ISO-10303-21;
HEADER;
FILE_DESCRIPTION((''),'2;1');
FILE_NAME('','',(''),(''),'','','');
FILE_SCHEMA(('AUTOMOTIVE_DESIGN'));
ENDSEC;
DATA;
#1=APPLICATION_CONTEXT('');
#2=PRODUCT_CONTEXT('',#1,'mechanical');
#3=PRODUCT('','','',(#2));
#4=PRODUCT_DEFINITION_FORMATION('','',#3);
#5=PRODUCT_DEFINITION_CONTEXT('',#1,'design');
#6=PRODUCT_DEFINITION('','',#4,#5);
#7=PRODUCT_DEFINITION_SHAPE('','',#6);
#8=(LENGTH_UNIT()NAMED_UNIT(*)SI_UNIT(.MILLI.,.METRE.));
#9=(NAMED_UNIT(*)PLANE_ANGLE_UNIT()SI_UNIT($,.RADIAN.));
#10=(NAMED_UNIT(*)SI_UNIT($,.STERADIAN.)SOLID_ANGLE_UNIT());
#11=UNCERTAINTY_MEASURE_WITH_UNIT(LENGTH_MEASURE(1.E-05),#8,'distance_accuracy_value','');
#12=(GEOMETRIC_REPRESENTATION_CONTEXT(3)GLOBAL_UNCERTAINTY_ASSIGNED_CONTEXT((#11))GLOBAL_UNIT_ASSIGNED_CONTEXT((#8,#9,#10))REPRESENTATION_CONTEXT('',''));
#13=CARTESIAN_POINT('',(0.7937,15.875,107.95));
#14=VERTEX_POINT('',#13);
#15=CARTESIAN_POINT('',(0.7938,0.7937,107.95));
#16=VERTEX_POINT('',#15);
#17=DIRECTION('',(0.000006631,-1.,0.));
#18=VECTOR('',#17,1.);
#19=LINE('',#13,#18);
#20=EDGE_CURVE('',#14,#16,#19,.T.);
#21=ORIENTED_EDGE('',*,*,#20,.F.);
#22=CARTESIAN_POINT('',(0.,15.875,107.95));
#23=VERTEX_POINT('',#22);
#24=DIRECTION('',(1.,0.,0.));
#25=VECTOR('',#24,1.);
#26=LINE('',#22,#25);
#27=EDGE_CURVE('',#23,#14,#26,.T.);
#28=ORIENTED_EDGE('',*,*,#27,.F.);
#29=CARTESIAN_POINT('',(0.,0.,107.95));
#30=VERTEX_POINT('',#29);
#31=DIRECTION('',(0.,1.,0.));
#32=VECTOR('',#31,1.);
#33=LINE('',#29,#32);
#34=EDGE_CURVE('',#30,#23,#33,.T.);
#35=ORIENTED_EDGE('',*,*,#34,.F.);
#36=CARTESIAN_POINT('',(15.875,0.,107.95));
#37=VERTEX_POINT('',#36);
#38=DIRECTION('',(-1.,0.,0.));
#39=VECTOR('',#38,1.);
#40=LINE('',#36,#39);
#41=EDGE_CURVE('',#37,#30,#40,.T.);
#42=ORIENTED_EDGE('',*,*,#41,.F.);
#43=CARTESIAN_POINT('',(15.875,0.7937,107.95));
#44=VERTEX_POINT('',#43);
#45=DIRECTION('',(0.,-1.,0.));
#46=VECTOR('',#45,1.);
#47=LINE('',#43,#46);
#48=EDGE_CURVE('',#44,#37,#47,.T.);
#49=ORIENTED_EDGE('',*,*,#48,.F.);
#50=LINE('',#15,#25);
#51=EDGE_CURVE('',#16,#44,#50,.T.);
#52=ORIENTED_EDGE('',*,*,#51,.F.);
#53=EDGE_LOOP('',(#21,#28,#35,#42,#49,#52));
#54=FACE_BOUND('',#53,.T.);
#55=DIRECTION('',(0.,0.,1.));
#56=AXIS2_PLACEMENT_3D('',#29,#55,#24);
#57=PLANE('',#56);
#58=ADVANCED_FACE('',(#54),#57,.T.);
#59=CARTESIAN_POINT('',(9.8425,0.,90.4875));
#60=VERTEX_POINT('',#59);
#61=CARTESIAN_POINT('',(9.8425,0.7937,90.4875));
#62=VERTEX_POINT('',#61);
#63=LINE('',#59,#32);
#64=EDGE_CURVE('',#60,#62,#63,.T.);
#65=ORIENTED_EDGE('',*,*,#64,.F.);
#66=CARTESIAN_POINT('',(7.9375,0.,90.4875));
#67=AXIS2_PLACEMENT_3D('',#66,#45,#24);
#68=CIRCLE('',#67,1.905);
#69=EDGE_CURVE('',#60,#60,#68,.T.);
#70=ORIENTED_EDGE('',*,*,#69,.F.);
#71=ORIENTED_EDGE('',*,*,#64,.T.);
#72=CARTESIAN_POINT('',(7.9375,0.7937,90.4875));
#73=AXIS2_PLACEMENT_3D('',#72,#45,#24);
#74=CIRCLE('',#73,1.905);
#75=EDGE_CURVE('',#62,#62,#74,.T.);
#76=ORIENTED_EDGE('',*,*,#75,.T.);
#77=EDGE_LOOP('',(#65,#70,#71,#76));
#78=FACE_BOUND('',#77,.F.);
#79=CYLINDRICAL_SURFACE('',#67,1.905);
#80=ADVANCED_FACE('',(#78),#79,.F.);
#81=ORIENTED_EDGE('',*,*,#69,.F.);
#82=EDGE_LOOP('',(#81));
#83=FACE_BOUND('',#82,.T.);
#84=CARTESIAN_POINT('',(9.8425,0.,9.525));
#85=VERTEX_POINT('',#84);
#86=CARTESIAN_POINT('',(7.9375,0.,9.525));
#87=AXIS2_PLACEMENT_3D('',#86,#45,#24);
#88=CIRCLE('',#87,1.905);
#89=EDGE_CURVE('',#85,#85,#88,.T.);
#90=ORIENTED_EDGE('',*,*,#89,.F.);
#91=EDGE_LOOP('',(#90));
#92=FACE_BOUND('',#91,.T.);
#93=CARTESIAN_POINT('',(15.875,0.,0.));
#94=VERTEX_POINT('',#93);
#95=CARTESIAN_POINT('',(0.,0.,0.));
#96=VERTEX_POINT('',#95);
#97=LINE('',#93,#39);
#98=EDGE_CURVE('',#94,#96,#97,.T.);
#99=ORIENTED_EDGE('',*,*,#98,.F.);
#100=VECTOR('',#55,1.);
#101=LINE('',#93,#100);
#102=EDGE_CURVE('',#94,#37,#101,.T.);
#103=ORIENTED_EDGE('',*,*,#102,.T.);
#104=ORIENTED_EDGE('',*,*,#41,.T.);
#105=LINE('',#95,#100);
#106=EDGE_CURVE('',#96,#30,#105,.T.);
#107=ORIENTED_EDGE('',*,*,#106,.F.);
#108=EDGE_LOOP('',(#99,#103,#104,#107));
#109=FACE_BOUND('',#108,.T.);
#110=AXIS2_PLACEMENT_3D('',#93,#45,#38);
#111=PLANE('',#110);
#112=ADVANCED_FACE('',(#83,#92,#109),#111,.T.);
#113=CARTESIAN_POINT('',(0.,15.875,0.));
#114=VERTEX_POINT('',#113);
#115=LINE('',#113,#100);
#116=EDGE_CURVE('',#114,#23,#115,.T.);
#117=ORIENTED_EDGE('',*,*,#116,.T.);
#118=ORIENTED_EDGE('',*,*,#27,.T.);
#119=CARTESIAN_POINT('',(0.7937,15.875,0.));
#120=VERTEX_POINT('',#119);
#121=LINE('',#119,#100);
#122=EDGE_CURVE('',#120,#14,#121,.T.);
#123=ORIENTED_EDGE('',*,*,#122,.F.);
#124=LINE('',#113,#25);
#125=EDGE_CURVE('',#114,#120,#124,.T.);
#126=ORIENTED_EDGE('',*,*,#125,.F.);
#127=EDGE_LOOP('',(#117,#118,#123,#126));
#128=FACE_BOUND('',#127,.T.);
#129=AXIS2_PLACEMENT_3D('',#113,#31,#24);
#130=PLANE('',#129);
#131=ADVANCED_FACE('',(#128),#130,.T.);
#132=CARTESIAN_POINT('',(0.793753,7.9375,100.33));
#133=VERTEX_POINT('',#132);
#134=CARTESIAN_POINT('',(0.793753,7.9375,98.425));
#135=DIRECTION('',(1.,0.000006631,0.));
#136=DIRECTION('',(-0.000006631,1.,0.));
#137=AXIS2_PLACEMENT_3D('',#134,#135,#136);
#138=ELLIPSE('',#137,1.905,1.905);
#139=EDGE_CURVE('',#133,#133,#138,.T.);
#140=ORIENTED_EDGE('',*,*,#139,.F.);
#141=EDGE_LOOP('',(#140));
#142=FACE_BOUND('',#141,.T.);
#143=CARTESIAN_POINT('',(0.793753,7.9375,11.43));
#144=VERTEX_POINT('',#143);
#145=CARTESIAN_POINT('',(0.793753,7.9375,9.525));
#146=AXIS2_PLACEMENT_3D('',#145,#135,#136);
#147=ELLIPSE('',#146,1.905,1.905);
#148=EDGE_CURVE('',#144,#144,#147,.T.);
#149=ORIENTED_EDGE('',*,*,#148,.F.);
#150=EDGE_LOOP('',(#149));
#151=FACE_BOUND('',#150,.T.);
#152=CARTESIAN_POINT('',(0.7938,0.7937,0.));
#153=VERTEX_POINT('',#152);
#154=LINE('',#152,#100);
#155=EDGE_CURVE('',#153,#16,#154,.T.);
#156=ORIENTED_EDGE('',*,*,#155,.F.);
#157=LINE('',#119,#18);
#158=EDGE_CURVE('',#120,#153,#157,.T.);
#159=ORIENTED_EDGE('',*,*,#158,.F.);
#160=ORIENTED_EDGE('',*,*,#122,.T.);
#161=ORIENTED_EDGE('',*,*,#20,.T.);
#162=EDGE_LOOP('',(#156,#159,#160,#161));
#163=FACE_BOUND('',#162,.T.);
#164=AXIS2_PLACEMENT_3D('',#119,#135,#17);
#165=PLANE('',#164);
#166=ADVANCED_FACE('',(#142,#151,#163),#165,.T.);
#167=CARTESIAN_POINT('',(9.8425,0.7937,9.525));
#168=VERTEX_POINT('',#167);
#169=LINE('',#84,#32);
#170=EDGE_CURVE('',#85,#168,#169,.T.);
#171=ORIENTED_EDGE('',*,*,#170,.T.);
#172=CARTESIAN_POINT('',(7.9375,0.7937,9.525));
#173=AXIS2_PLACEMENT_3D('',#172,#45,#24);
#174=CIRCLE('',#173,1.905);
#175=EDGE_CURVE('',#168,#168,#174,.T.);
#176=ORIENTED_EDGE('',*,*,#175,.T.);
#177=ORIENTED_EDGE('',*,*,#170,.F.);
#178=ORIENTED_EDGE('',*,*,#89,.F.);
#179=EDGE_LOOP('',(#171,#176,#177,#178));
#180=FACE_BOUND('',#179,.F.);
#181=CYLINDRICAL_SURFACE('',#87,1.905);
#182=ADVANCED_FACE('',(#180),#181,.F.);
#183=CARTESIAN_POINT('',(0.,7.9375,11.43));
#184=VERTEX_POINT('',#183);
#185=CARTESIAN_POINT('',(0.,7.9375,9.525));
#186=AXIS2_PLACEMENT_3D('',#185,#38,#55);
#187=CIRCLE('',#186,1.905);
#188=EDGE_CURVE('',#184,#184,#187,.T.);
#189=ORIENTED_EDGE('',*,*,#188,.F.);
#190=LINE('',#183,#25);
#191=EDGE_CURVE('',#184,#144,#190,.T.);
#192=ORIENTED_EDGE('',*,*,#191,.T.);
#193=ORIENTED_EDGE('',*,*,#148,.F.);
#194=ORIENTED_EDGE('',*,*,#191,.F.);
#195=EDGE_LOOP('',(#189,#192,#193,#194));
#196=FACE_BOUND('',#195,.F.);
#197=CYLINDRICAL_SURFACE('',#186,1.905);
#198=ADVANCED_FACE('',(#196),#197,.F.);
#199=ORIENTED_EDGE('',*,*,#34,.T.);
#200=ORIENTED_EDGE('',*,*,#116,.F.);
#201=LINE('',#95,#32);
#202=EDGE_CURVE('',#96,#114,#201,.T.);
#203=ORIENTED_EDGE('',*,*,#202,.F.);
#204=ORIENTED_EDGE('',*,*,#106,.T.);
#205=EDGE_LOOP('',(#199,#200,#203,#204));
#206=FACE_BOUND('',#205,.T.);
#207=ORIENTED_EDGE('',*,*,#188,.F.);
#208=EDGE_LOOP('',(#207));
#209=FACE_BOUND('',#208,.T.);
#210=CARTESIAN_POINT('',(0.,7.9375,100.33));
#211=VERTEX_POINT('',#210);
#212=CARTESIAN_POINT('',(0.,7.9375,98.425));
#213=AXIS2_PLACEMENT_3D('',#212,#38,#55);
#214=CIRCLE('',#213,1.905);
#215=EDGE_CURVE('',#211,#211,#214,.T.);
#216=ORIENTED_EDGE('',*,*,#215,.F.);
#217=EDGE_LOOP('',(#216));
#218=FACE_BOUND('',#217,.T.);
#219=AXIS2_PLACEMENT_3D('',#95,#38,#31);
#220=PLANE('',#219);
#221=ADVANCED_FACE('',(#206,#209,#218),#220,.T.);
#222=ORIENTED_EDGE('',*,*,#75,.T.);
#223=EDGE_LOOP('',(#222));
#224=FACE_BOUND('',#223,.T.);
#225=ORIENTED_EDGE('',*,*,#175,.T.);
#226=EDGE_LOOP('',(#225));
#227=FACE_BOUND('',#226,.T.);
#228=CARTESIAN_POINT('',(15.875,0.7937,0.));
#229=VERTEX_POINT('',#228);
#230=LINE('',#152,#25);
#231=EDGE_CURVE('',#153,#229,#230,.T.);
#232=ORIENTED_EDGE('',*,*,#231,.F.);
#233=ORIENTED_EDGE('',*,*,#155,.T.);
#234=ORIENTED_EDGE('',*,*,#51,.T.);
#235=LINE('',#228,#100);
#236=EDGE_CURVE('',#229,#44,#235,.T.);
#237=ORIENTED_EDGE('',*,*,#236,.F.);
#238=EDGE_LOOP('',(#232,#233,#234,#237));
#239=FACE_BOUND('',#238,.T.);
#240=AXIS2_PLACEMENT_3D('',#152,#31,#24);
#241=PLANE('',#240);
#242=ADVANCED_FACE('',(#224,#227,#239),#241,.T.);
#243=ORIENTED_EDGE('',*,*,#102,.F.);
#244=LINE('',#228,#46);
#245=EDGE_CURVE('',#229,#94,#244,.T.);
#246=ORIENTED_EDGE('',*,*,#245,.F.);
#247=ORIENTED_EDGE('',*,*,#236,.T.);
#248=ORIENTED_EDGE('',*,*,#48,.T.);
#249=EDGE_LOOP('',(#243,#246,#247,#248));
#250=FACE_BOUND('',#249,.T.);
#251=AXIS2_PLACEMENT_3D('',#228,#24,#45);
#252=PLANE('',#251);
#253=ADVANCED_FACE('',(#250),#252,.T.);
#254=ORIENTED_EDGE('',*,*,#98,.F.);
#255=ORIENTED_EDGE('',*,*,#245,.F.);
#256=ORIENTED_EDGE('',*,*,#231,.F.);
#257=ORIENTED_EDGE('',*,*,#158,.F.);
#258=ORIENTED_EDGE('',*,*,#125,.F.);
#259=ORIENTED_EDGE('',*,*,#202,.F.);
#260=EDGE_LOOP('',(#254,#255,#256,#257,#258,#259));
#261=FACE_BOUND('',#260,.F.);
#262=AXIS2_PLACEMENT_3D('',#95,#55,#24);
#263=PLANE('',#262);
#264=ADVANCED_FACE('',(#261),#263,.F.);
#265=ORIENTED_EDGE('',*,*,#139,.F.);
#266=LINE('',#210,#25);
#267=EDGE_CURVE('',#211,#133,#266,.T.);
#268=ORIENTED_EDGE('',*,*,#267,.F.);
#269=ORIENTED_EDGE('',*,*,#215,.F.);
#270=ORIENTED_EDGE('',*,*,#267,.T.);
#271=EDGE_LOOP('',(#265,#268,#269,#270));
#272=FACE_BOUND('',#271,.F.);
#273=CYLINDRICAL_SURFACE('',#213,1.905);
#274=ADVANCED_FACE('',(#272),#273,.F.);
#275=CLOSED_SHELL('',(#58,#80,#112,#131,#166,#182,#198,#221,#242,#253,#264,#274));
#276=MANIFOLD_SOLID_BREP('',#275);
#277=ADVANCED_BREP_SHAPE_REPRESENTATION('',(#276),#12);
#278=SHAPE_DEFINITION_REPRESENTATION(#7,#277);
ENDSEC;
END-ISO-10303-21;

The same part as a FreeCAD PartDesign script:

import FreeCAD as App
import Part
import Sketcher

V = App.Vector
Q = App.Units.Quantity

doc = App.newDocument("Part")
body = doc.addObject("PartDesign::Body", "Body")

# Sketch on XY plane
sketch1 = body.newObject("Sketcher::SketchObject", "Sketch")
sketch1.AttachmentSupport = (doc.getObject("XY_Plane"), [""])
sketch1.MapMode = "FlatFace"
sketch1.addGeometry(Part.LineSegment(V(0, 15.9, 0), V(0, 0, 0)), False)
sketch1.addGeometry(Part.LineSegment(V(0, 0, 0), V(15.9, 0, 0)), False)
sketch1.addGeometry(Part.LineSegment(V(15.9, 0, 0), V(15.9, 0.8, 0)), False)
sketch1.addGeometry(Part.LineSegment(V(15.9, 0.8, 0), V(0.8, 0.8, 0)), False)
sketch1.addGeometry(Part.LineSegment(V(0.8, 0.8, 0), V(0.8, 15.9, 0)), False)
sketch1.addGeometry(Part.LineSegment(V(0.8, 15.9, 0), V(0, 15.9, 0)), False)
sketch1.addConstraint(Sketcher.Constraint("Coincident", 0, 2, 1, 1))
sketch1.addConstraint(Sketcher.Constraint("Coincident", 1, 2, 2, 1))
sketch1.addConstraint(Sketcher.Constraint("Coincident", 2, 2, 3, 1))
sketch1.addConstraint(Sketcher.Constraint("Coincident", 3, 2, 4, 1))
sketch1.addConstraint(Sketcher.Constraint("Coincident", 4, 2, 5, 1))
sketch1.addConstraint(Sketcher.Constraint("Coincident", 5, 2, 0, 1))
sketch1.addConstraint(Sketcher.Constraint("Vertical", 0))
sketch1.addConstraint(Sketcher.Constraint("Horizontal", 1))
sketch1.addConstraint(Sketcher.Constraint("Vertical", 2))
sketch1.addConstraint(Sketcher.Constraint("Horizontal", 3))
sketch1.addConstraint(Sketcher.Constraint("Vertical", 4))
sketch1.addConstraint(Sketcher.Constraint("Horizontal", 5))
sketch1.addConstraint(Sketcher.Constraint("Coincident", 0, 2, -1, 1))
sketch1.addConstraint(Sketcher.Constraint("Equal", 1, 0))
sketch1.addConstraint(Sketcher.Constraint("Equal", 5, 2))
sketch1.addConstraint(Sketcher.Constraint("DistanceX", 1, 1, 1, 2, Q("0.625 in")))
sketch1.addConstraint(Sketcher.Constraint("DistanceX", 5, 2, 5, 1, Q("0.031248 in")))
pad1 = body.newObject("PartDesign::Pad", "Pad")
pad1.Profile = sketch1
pad1.Length = Q("4.25 in")

# Sketch on XZ plane
sketch2 = body.newObject("Sketcher::SketchObject", "Sketch001")
sketch2.AttachmentSupport = (doc.getObject("XZ_Plane"), [""])
sketch2.MapMode = "FlatFace"
sketch2.addGeometry(Part.Circle(V(7.9, 90.5, 0), V(0, 0, 1), 1.9), False)
sketch2.addGeometry(Part.Circle(V(7.9, 9.5, 0), V(0, 0, 1), 1.9), False)
sketch2.addConstraint(Sketcher.Constraint("Equal", 0, 1))
sketch2.addConstraint(Sketcher.Constraint("Vertical", 0, 3, 1, 3))
sketch2.addConstraint(Sketcher.Constraint("Diameter", 0, Q("0.15 in")))
sketch2.addConstraint(Sketcher.Constraint("DistanceY", -1, 1, 1, 3, Q("0.375 in")))
sketch2.addConstraint(Sketcher.Constraint("DistanceX", -1, 1, 0, 3, Q("0.3125 in")))
sketch2.addConstraint(Sketcher.Constraint("DistanceY", -1, 1, 0, 3, Q("3.5625 in")))
pocket1 = body.newObject("PartDesign::Pocket", "Pocket")
pocket1.Profile = sketch2
pocket1.Type = "ThroughAll"

# Sketch on YZ plane
sketch3 = body.newObject("Sketcher::SketchObject", "Sketch002")
sketch3.AttachmentSupport = (doc.getObject("YZ_Plane"), [""])
sketch3.MapMode = "FlatFace"
sketch3.addGeometry(Part.Circle(V(7.9, 9.5, 0), V(0, 0, 1), 1.9), False)
sketch3.addGeometry(Part.Circle(V(7.9, 98.4, 0), V(0, 0, 1), 1.9), False)
sketch3.addConstraint(Sketcher.Constraint("Equal", 0, 1))
sketch3.addConstraint(Sketcher.Constraint("Vertical", 0, 3, 1, 3))
sketch3.addConstraint(Sketcher.Constraint("Diameter", 0, Q("0.15 in")))
sketch3.addConstraint(Sketcher.Constraint("DistanceY", -1, 1, 0, 3, Q("0.375 in")))
sketch3.addConstraint(Sketcher.Constraint("DistanceY", 0, 3, 1, 3, Q("3.5 in")))
sketch3.addConstraint(Sketcher.Constraint("DistanceX", -1, 1, 0, 3, Q("0.3125 in")))
pocket2 = body.newObject("PartDesign::Pocket", "Pocket001")
pocket2.Profile = sketch3
pocket2.Type = "ThroughAll"
pocket2.Reversed = True

doc.recompute()
